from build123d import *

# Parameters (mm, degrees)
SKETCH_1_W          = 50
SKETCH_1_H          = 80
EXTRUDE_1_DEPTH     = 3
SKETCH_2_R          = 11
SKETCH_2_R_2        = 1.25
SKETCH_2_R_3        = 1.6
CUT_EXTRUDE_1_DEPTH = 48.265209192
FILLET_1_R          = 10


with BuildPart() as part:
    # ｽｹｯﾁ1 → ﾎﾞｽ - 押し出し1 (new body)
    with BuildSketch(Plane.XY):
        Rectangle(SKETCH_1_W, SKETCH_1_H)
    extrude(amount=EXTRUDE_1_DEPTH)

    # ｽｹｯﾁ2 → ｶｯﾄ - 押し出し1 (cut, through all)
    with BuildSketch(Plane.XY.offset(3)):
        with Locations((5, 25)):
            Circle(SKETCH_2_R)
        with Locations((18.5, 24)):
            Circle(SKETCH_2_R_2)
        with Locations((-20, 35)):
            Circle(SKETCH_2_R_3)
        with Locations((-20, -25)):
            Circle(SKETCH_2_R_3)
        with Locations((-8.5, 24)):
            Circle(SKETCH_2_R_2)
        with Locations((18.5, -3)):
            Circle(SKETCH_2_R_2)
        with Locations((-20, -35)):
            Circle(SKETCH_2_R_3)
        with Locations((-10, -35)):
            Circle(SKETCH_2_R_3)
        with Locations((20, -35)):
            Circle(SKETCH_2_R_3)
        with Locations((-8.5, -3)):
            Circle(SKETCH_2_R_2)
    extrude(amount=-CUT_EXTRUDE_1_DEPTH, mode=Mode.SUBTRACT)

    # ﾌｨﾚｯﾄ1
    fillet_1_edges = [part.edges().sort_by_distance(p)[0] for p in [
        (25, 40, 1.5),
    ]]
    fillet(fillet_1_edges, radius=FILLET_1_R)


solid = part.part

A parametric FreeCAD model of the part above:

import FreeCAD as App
import Part
import Sketcher


def edges_at(feature, points):
    """Names of the edges that pass closest to the given points."""
    edges = feature.Shape.Edges
    near = lambda p: min(range(len(edges)), key=lambda i: edges[i].distToShape(Part.Vertex(*p))[0])
    return sorted({f"Edge{near(p) + 1}" for p in points})


def add_polygon(sketch, points):
    """Adds a closed chain of lines whose ends are joined by coincident constraints."""
    first, n = sketch.GeometryCount, len(points)
    for a, b in zip(points, points[1:] + points[:1]):
        sketch.addGeometry(Part.LineSegment(App.Vector(*a, 0), App.Vector(*b, 0)), False)
    for i in range(n):
        sketch.addConstraint(Sketcher.Constraint("Coincident", first + i, 2, first + (i + 1) % n, 1))

doc = App.newDocument("Part")
params = doc.addObject("Spreadsheet::Sheet", "Params")
for row, (alias, value) in enumerate([
    ("sketch1_width", "50 mm"),
    ("sketch1_height", "80 mm"),
    ("pad1_length", "3 mm"),
    ("sketch2_diameter", "22 mm"),
    ("sketch2_diameter2", "2.5 mm"),
    ("sketch2_diameter3", "3.2 mm"),
    ("fillet_radius", "10 mm"),
], start=1):
    params.set(f"A{row}", alias)
    params.set(f"B{row}", "=" + value)
    params.setAlias(f"B{row}", alias)

body = doc.addObject("PartDesign::Body", "Body")

# Sketch on XY plane
sketch1 = body.newObject("Sketcher::SketchObject", "Sketch")
sketch1.AttachmentSupport = (doc.getObject("XY_Plane"), [""])
sketch1.MapMode = "FlatFace"
add_polygon(sketch1, [(-25, 40), (-25, -40), (25, -40), (25, 40)])  # lines 0-3
sketch1.addConstraint(Sketcher.Constraint("Vertical", 0))
sketch1.addConstraint(Sketcher.Constraint("Horizontal", 1))
sketch1.addConstraint(Sketcher.Constraint("Vertical", 2))
sketch1.addConstraint(Sketcher.Constraint("Horizontal", 3))
sketch1.addConstraint(Sketcher.Constraint("Symmetric", 0, 2, 2, 2, -1, 1))
sketch1.addConstraint(Sketcher.Constraint("DistanceX", 1, 1, 1, 2, 50.0))
sketch1.addConstraint(Sketcher.Constraint("DistanceY", 0, 2, 0, 1, 80.0))
sketch1.setExpression("Constraints[9]", "Params.sketch1_width")
sketch1.setExpression("Constraints[10]", "Params.sketch1_height")
pad1 = body.newObject("PartDesign::Pad", "Pad")
pad1.Profile = sketch1
pad1.setExpression("Length", "Params.pad1_length")

# Sketch on XY plane
sketch2 = body.newObject("Sketcher::SketchObject", "Sketch001")
sketch2.AttachmentSupport = (doc.getObject("XY_Plane"), [""])
sketch2.MapMode = "FlatFace"
sketch2.AttachmentOffset = App.Placement(App.Vector(0, 0, 3), App.Rotation())
sketch2.addGeometry(Part.Circle(App.Vector(5, 25, 0), App.Vector(0, 0, 1), 11), False)
sketch2.addGeometry(Part.Circle(App.Vector(18.5, 24, 0), App.Vector(0, 0, 1), 1.2), False)
sketch2.addGeometry(Part.Circle(App.Vector(-20, 35, 0), App.Vector(0, 0, 1), 1.6), False)
sketch2.addGeometry(Part.Circle(App.Vector(-20, -25, 0), App.Vector(0, 0, 1), 1.6), False)
sketch2.addGeometry(Part.Circle(App.Vector(-8.5, 24, 0), App.Vector(0, 0, 1), 1.2), False)
sketch2.addGeometry(Part.Circle(App.Vector(18.5, -3, 0), App.Vector(0, 0, 1), 1.2), False)
sketch2.addGeometry(Part.Circle(App.Vector(-20, -35, 0), App.Vector(0, 0, 1), 1.6), False)
sketch2.addGeometry(Part.Circle(App.Vector(-10, -35, 0), App.Vector(0, 0, 1), 1.6), False)
sketch2.addGeometry(Part.Circle(App.Vector(20, -35, 0), App.Vector(0, 0, 1), 1.6), False)
sketch2.addGeometry(Part.Circle(App.Vector(-8.5, -3, 0), App.Vector(0, 0, 1), 1.2), False)
sketch2.addConstraint(Sketcher.Constraint("Equal", 2, 3))
sketch2.addConstraint(Sketcher.Constraint("Equal", 1, 4))
sketch2.addConstraint(Sketcher.Constraint("Equal", 4, 5))
sketch2.addConstraint(Sketcher.Constraint("Equal", 3, 6))
sketch2.addConstraint(Sketcher.Constraint("Equal", 6, 7))
sketch2.addConstraint(Sketcher.Constraint("Equal", 7, 8))
sketch2.addConstraint(Sketcher.Constraint("Equal", 5, 9))
sketch2.addConstraint(Sketcher.Constraint("Symmetric", 2, 3, 8, 3, -1, 1))
sketch2.addConstraint(Sketcher.Constraint("Symmetric", 6, 3, 8, 3, -2))
sketch2.addConstraint(Sketcher.Constraint("Horizontal", 1, 3, 4, 3))
sketch2.addConstraint(Sketcher.Constraint("Horizontal", 6, 3, 7, 3))
sketch2.addConstraint(Sketcher.Constraint("Horizontal", 5, 3, 9, 3))
sketch2.addConstraint(Sketcher.Constraint("Vertical", 2, 3, 3, 3))
sketch2.addConstraint(Sketcher.Constraint("Vertical", 1, 3, 5, 3))
sketch2.addConstraint(Sketcher.Constraint("Vertical", 4, 3, 9, 3))
sketch2.addConstraint(Sketcher.Constraint("Diameter", 0, 22.0))
sketch2.addConstraint(Sketcher.Constraint("Diameter", 1, 2.5))
sketch2.addConstraint(Sketcher.Constraint("Diameter", 2, 3.2))
sketch2.addConstraint(Sketcher.Constraint("DistanceX", -1, 1, 0, 3, 5.0))
sketch2.addConstraint(Sketcher.Constraint("DistanceY", -1, 1, 0, 3, 25.0))
sketch2.addConstraint(Sketcher.Constraint("DistanceY", -1, 1, 1, 3, 24.0))
sketch2.addConstraint(Sketcher.Constraint("DistanceX", 2, 3, -1, 1, 20.0))
sketch2.addConstraint(Sketcher.Constraint("DistanceY", -1, 1, 2, 3, 35.0))
sketch2.addConstraint(Sketcher.Constraint("DistanceY", 3, 3, -1, 1, 25.0))
sketch2.addConstraint(Sketcher.Constraint("DistanceY", 5, 3, -1, 1, 3.0))
sketch2.addConstraint(Sketcher.Constraint("DistanceX", 7, 3, -1, 1, 10.0))
sketch2.addConstraint(Sketcher.Constraint("DistanceX", 4, 3, 1, 3, 27.0))
sketch2.addConstraint(Sketcher.Constraint("DistanceX", -1, 1, 1, 3, 18.5))
sketch2.setExpression("Constraints[15]", "Params.sketch2_diameter")
sketch2.setExpression("Constraints[16]", "Params.sketch2_diameter2")
sketch2.setExpression("Constraints[17]", "Params.sketch2_diameter3")
pocket1 = body.newObject("PartDesign::Pocket", "Pocket")
pocket1.Profile = sketch2
pocket1.Type = "ThroughAll"
doc.recompute()

fillet = body.newObject("PartDesign::Fillet", "Fillet")
fillet.Base = (pocket1, edges_at(pocket1, [(25, 40, 1.5)]))
fillet.setExpression("Radius", "Params.fillet_radius")

doc.recompute()
